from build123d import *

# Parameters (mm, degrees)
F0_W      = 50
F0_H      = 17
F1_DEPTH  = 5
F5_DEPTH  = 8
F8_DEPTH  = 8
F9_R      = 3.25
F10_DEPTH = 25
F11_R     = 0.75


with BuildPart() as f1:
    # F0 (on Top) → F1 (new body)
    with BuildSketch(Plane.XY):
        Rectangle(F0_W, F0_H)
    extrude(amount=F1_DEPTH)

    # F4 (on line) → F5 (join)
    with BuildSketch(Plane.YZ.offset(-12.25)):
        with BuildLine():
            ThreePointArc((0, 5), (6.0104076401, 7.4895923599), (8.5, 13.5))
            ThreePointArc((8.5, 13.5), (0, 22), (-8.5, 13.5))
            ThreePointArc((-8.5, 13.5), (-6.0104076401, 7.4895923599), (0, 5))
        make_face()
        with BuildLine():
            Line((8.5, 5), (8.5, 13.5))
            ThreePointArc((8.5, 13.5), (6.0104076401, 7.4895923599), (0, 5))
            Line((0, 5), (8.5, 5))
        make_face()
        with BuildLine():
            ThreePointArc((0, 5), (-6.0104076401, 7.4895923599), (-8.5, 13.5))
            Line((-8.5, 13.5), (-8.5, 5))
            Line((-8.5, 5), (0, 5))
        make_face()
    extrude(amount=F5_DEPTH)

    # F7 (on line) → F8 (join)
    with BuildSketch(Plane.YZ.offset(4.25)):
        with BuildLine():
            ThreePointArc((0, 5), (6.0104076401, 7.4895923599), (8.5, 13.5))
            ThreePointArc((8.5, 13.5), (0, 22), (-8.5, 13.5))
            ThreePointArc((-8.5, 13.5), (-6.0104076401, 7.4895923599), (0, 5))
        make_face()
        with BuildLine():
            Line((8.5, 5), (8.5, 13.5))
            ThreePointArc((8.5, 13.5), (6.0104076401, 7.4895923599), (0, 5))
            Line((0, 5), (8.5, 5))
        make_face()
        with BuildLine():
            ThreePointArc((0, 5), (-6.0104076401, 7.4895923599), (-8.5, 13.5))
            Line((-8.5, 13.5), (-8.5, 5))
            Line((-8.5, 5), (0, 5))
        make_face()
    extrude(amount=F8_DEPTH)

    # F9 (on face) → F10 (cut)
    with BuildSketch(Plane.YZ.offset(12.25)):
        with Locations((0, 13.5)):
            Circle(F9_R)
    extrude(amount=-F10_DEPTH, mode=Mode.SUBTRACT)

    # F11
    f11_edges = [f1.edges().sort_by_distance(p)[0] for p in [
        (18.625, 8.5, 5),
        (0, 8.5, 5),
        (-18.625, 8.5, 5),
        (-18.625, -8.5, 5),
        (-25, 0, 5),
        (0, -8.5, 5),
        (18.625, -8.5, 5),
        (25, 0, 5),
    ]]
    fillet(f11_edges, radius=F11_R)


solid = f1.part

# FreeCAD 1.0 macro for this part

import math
import FreeCAD as App
import Part
import Sketcher

V = App.Vector


def edges_at(feature, points):
    """Names of the edges that pass closest to the given points."""
    edges = feature.Shape.Edges
    near = lambda p: min(range(len(edges)), key=lambda i: edges[i].distToShape(Part.Vertex(*p))[0])
    return sorted({f"Edge{near(p) + 1}" for p in points})


def add_polygon(sketch, points):
    """Adds a closed chain of lines whose ends are joined by coincident constraints."""
    first, n = sketch.GeometryCount, len(points)
    for a, b in zip(points, points[1:] + points[:1]):
        sketch.addGeometry(Part.LineSegment(App.Vector(*a, 0), App.Vector(*b, 0)), False)
    for i in range(n):
        sketch.addConstraint(Sketcher.Constraint("Coincident", first + i, 2, first + (i + 1) % n, 1))

doc = App.newDocument("Part")
body = doc.addObject("PartDesign::Body", "Body")

# Sketch on XY plane
sketch1 = body.newObject("Sketcher::SketchObject", "Sketch")
sketch1.AttachmentSupport = (doc.getObject("XY_Plane"), [""])
sketch1.MapMode = "FlatFace"
add_polygon(sketch1, [(-25, 8), (-25, -8), (25, -8), (25, 8)])  # lines 0-3
sketch1.addConstraint(Sketcher.Constraint("Vertical", 0))
sketch1.addConstraint(Sketcher.Constraint("Horizontal", 1))
sketch1.addConstraint(Sketcher.Constraint("Vertical", 2))
sketch1.addConstraint(Sketcher.Constraint("Horizontal", 3))
sketch1.addConstraint(Sketcher.Constraint("Symmetric", 0, 2, 2, 2, -1, 1))
sketch1.addConstraint(Sketcher.Constraint("DistanceX", 1, 1, 1, 2, 50.0))
sketch1.addConstraint(Sketcher.Constraint("DistanceY", 0, 2, 0, 1, 17.0))
pad1 = body.newObject("PartDesign::Pad", "Pad")
pad1.Profile = sketch1
pad1.Length = 5

# Sketch on YZ plane
sketch2 = body.newObject("Sketcher::SketchObject", "Sketch001")
sketch2.AttachmentSupport = (doc.getObject("YZ_Plane"), [""])
sketch2.MapMode = "FlatFace"
sketch2.AttachmentOffset = App.Placement(V(0, 0, -12.25), App.Rotation())
sketch2.addGeometry(Part.ArcOfCircle(Part.Circle(V(0, 14, 0), V(0, 0, 1), 8), math.radians(0), math.radians(180)), False)
sketch2.addGeometry(Part.LineSegment(V(-8, 14, 0), V(-8, 5, 0)), False)
sketch2.addGeometry(Part.LineSegment(V(-8, 5, 0), V(8, 5, 0)), False)
sketch2.addGeometry(Part.LineSegment(V(8, 5, 0), V(8, 14, 0)), False)
sketch2.addConstraint(Sketcher.Constraint("Tangent", 0, 2, 1, 1))
sketch2.addConstraint(Sketcher.Constraint("Coincident", 1, 2, 2, 1))
sketch2.addConstraint(Sketcher.Constraint("Coincident", 2, 2, 3, 1))
sketch2.addConstraint(Sketcher.Constraint("Tangent", 3, 2, 0, 1))
sketch2.addConstraint(Sketcher.Constraint("Vertical", 1))
sketch2.addConstraint(Sketcher.Constraint("Horizontal", 2))
sketch2.addConstraint(Sketcher.Constraint("Vertical", 3))
sketch2.addConstraint(Sketcher.Constraint("PointOnObject", 0, 3, -2))
sketch2.addConstraint(Sketcher.Constraint("Radius", 0, 8.5))
sketch2.addConstraint(Sketcher.Constraint("DistanceY", 1, 2, 1, 1, 8.5))
sketch2.addConstraint(Sketcher.Constraint("DistanceY", -1, 1, 1, 2, 5.0))
pad2 = body.newObject("PartDesign::Pad", "Pad001")
pad2.Profile = sketch2
pad2.Length = 8

# Sketch on YZ plane
sketch3 = body.newObject("Sketcher::SketchObject", "Sketch002")
sketch3.AttachmentSupport = (doc.getObject("YZ_Plane"), [""])
sketch3.MapMode = "FlatFace"
sketch3.AttachmentOffset = App.Placement(V(0, 0, 4.25), App.Rotation())
sketch3.addGeometry(Part.ArcOfCircle(Part.Circle(V(0, 14, 0), V(0, 0, 1), 8), math.radians(0), math.radians(180)), False)
sketch3.addGeometry(Part.LineSegment(V(-8, 14, 0), V(-8, 5, 0)), False)
sketch3.addGeometry(Part.LineSegment(V(-8, 5, 0), V(8, 5, 0)), False)
sketch3.addGeometry(Part.LineSegment(V(8, 5, 0), V(8, 14, 0)), False)
sketch3.addConstraint(Sketcher.Constraint("Tangent", 0, 2, 1, 1))
sketch3.addConstraint(Sketcher.Constraint("Coincident", 1, 2, 2, 1))
sketch3.addConstraint(Sketcher.Constraint("Coincident", 2, 2, 3, 1))
sketch3.addConstraint(Sketcher.Constraint("Tangent", 3, 2, 0, 1))
sketch3.addConstraint(Sketcher.Constraint("Vertical", 1))
sketch3.addConstraint(Sketcher.Constraint("Horizontal", 2))
sketch3.addConstraint(Sketcher.Constraint("Vertical", 3))
sketch3.addConstraint(Sketcher.Constraint("PointOnObject", 0, 3, -2))
sketch3.addConstraint(Sketcher.Constraint("Radius", 0, 8.5))
sketch3.addConstraint(Sketcher.Constraint("DistanceY", 1, 2, 1, 1, 8.5))
sketch3.addConstraint(Sketcher.Constraint("DistanceY", -1, 1, 1, 2, 5.0))
pad3 = body.newObject("PartDesign::Pad", "Pad002")
pad3.Profile = sketch3
pad3.Length = 8

# Sketch on YZ plane
sketch4 = body.newObject("Sketcher::SketchObject", "Sketch003")
sketch4.AttachmentSupport = (doc.getObject("YZ_Plane"), [""])
sketch4.MapMode = "FlatFace"
sketch4.AttachmentOffset = App.Placement(V(0, 0, 12.25), App.Rotation())
sketch4.addGeometry(Part.Circle(V(0, 13.5, 0), V(0, 0, 1), 3.2), False)
sketch4.addConstraint(Sketcher.Constraint("PointOnObject", 0, 3, -2))
sketch4.addConstraint(Sketcher.Constraint("Diameter", 0, 6.5))
sketch4.addConstraint(Sketcher.Constraint("DistanceY", -1, 1, 0, 3, 13.5))
pocket1 = body.newObject("PartDesign::Pocket", "Pocket")
pocket1.Profile = sketch4
pocket1.Length = 25
doc.recompute()

fillet = body.newObject("PartDesign::Fillet", "Fillet")
fillet.Base = (pocket1, edges_at(pocket1, [
    (18.625, 8.5, 5),
    (0, 8.5, 5),
    (-18.625, 8.5, 5),
    (-18.625, -8.5, 5),
    (-25, 0, 5),
    (0, -8.5, 5),
    (18.625, -8.5, 5),
    (25, 0, 5),
]))
fillet.Radius = 0.75

doc.recompute()
